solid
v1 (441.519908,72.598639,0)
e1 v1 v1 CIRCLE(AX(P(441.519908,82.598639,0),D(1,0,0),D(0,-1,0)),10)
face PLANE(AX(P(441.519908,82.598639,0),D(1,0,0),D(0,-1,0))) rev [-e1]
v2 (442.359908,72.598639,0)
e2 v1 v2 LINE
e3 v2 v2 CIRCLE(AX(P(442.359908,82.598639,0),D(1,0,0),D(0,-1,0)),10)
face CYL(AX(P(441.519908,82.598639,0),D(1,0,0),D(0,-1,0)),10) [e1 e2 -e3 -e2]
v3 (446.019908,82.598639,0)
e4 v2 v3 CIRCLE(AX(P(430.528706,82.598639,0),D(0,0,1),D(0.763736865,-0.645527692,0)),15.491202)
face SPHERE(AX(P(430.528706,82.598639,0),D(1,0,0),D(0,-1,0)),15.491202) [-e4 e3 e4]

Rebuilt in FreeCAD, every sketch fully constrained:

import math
import FreeCAD as App
import Part
import Sketcher
from FreeCAD import Vector
Q = App.Units.Quantity

doc = App.newDocument("Part")
body = doc.addObject("PartDesign::Body", "Body")

# Sketch on XY plane
sketch1 = doc.addObject("Sketcher::SketchObject", "Sketch")
body.addObject(sketch1)
sketch1.AttachmentSupport = (doc.XY_Plane, [""])
sketch1.MapMode = "FlatFace"
sketch1.addGeometry(Part.LineSegment(Vector(441.519908, 92.598639, 0), Vector(441.519908, 82.598639, 0)), False)
sketch1.addGeometry(Part.LineSegment(Vector(441.519908, 82.598639, 0), Vector(446.019908, 82.598639, 0)), False)
sketch1.addGeometry(Part.ArcOfCircle(Part.Circle(Vector(430.528706, 82.598639, 0), Vector(0, 0, 1), 15.491202), math.radians(0), math.radians(40.205252)), False)
sketch1.addGeometry(Part.LineSegment(Vector(442.359908, 92.598639, 0), Vector(441.519908, 92.598639, 0)), False)
sketch1.addGeometry(Part.LineSegment(Vector(430.528706, 82.598639, 0), Vector(446.019908, 82.598639, 0)), True)  # axis
sketch1.addConstraint(Sketcher.Constraint("Coincident", 0, 2, 1, 1))
sketch1.addConstraint(Sketcher.Constraint("Coincident", 1, 2, 2, 1))
sketch1.addConstraint(Sketcher.Constraint("Coincident", 2, 2, 3, 1))
sketch1.addConstraint(Sketcher.Constraint("Coincident", 3, 2, 0, 1))
sketch1.addConstraint(Sketcher.Constraint("Vertical", 0))
sketch1.addConstraint(Sketcher.Constraint("Horizontal", 1))
sketch1.addConstraint(Sketcher.Constraint("Horizontal", 3))
sketch1.addConstraint(Sketcher.Constraint("Horizontal", 4))
sketch1.addConstraint(Sketcher.Constraint("Coincident", 4, 1, 2, 3))
sketch1.addConstraint(Sketcher.Constraint("Coincident", 4, 2, 1, 2))
sketch1.addConstraint(Sketcher.Constraint("DistanceY", 0, 2, 0, 1, Q("10 mm")))
sketch1.addConstraint(Sketcher.Constraint("DistanceX", 1, 1, 1, 2, Q("4.5 mm")))
sketch1.addConstraint(Sketcher.Constraint("DistanceX", 3, 2, 3, 1, Q("0.84 mm")))
sketch1.addConstraint(Sketcher.Constraint("DistanceY", -1, 1, 2, 3, Q("82.598639 mm")))
sketch1.addConstraint(Sketcher.Constraint("DistanceX", -1, 1, 2, 3, Q("430.528706 mm")))
revolution = doc.addObject("PartDesign::Revolution", "Revolution")
body.addObject(revolution)
revolution.Profile = sketch1
revolution.ReferenceAxis = (sketch1, ["Axis0"])
revolution.Angle = 360

doc.recompute()
